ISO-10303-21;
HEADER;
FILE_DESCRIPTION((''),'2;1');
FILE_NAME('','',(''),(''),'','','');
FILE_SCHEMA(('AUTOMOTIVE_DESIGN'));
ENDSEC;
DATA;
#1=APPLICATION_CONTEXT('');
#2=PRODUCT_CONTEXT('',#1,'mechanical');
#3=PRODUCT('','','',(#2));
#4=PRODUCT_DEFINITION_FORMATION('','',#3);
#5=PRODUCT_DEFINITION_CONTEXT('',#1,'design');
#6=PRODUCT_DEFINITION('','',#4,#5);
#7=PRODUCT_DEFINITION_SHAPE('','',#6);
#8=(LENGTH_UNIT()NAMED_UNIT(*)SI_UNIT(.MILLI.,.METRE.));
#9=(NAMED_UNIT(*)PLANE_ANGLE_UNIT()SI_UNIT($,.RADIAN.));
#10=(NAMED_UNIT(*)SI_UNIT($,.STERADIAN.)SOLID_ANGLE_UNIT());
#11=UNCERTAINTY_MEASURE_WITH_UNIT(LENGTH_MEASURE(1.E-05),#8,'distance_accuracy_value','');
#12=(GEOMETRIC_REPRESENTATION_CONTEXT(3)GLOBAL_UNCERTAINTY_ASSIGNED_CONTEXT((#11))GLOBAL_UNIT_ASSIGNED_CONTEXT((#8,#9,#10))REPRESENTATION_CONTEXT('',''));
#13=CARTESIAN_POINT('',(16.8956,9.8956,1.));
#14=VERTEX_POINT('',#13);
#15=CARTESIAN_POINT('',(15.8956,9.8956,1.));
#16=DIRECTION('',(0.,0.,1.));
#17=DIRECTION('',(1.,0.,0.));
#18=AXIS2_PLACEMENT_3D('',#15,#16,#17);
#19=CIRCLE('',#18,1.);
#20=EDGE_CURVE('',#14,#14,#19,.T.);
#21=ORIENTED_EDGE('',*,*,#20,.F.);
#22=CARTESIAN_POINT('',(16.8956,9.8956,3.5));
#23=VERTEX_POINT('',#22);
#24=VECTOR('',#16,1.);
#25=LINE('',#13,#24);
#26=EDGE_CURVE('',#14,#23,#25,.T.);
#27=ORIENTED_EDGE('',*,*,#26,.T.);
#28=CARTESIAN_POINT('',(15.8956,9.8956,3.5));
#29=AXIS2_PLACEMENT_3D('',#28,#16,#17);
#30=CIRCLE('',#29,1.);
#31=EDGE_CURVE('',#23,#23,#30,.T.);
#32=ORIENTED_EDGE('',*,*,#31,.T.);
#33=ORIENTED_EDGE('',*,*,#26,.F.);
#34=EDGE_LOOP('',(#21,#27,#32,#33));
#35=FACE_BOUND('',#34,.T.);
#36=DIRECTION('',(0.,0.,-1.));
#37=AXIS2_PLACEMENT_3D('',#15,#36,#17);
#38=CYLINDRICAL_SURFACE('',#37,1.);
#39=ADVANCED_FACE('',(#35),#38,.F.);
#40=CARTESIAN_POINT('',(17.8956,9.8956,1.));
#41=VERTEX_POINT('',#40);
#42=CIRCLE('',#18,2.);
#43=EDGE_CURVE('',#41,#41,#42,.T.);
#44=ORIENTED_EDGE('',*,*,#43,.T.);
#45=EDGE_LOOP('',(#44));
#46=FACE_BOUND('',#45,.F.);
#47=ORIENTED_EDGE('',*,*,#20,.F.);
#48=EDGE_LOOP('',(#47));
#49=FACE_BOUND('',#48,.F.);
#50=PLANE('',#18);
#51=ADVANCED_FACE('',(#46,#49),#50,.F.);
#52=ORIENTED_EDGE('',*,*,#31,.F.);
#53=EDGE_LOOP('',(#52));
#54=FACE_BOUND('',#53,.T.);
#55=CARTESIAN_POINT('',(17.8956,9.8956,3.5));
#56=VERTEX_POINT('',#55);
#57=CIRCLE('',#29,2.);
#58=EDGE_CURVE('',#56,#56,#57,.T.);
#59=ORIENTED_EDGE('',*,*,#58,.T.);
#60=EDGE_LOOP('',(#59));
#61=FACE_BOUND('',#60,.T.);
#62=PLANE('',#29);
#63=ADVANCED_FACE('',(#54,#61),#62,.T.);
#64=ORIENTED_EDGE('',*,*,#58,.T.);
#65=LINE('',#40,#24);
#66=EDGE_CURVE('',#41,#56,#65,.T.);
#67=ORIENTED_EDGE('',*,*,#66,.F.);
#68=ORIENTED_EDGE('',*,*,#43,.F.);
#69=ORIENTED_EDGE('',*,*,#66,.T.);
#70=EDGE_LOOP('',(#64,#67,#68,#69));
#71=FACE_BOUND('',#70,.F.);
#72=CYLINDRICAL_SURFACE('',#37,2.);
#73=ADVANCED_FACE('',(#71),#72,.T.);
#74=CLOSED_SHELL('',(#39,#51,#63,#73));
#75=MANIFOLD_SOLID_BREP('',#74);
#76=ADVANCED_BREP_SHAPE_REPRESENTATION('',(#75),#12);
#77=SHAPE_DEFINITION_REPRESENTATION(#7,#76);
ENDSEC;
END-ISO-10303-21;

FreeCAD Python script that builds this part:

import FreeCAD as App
import Part
import Sketcher
from FreeCAD import Vector

doc = App.newDocument("Part")
body = doc.addObject("PartDesign::Body", "Body")

sketch1 = body.newObject("Sketcher::SketchObject", "Sketch")
sketch1.AttachmentSupport = (doc.getObject("XY_Plane"), [""])
sketch1.MapMode = "FlatFace"
sketch1.addGeometry(Part.Circle(Vector(15.9, 9.9, 0), Vector(0, 0, 1), 1), False)
sketch1.addConstraint([
    Sketcher.Constraint("Diameter", 0, 2.0),
    Sketcher.Constraint("DistanceX", -1, 1, 0, 3, 15.8956),
    Sketcher.Constraint("DistanceY", -1, 1, 0, 3, 9.8956),
])
pad1 = body.newObject("PartDesign::Pad", "Pad")
pad1.Profile = sketch1
pad1.Length = 2.5
body2 = doc.addObject("PartDesign::Body", "Body001")

sketch2 = body2.newObject("Sketcher::SketchObject", "Sketch001")
sketch2.AttachmentSupport = (doc.getObject("XY_Plane001"), [""])
sketch2.MapMode = "FlatFace"
sketch2.addGeometry(Part.Circle(Vector(15.9, 9.9, 0), Vector(0, 0, 1), 2), False)
sketch2.addConstraint([
    Sketcher.Constraint("Diameter", 0, 4.0),
    Sketcher.Constraint("DistanceX", -1, 1, 0, 3, 15.8956),
    Sketcher.Constraint("DistanceY", -1, 1, 0, 3, 9.8956),
])
pad2 = body2.newObject("PartDesign::Pad", "Pad001")
pad2.Profile = sketch2
pad2.Length = 2.5
doc.recompute()

boolean = body2.newObject("PartDesign::Boolean", "Boolean")
boolean.Type = "Cut"
boolean.addObjects([body])
body3 = doc.addObject("PartDesign::Body", "Body002")
doc.recompute()

body2.Placement = App.Placement(Vector(0, 0, 1), App.Rotation(Vector(0, 0, 1), 0))
boolean2 = body3.newObject("PartDesign::Boolean", "Boolean001")
boolean2.Type = "Fuse"
boolean2.addObjects([body2])

doc.recompute()
